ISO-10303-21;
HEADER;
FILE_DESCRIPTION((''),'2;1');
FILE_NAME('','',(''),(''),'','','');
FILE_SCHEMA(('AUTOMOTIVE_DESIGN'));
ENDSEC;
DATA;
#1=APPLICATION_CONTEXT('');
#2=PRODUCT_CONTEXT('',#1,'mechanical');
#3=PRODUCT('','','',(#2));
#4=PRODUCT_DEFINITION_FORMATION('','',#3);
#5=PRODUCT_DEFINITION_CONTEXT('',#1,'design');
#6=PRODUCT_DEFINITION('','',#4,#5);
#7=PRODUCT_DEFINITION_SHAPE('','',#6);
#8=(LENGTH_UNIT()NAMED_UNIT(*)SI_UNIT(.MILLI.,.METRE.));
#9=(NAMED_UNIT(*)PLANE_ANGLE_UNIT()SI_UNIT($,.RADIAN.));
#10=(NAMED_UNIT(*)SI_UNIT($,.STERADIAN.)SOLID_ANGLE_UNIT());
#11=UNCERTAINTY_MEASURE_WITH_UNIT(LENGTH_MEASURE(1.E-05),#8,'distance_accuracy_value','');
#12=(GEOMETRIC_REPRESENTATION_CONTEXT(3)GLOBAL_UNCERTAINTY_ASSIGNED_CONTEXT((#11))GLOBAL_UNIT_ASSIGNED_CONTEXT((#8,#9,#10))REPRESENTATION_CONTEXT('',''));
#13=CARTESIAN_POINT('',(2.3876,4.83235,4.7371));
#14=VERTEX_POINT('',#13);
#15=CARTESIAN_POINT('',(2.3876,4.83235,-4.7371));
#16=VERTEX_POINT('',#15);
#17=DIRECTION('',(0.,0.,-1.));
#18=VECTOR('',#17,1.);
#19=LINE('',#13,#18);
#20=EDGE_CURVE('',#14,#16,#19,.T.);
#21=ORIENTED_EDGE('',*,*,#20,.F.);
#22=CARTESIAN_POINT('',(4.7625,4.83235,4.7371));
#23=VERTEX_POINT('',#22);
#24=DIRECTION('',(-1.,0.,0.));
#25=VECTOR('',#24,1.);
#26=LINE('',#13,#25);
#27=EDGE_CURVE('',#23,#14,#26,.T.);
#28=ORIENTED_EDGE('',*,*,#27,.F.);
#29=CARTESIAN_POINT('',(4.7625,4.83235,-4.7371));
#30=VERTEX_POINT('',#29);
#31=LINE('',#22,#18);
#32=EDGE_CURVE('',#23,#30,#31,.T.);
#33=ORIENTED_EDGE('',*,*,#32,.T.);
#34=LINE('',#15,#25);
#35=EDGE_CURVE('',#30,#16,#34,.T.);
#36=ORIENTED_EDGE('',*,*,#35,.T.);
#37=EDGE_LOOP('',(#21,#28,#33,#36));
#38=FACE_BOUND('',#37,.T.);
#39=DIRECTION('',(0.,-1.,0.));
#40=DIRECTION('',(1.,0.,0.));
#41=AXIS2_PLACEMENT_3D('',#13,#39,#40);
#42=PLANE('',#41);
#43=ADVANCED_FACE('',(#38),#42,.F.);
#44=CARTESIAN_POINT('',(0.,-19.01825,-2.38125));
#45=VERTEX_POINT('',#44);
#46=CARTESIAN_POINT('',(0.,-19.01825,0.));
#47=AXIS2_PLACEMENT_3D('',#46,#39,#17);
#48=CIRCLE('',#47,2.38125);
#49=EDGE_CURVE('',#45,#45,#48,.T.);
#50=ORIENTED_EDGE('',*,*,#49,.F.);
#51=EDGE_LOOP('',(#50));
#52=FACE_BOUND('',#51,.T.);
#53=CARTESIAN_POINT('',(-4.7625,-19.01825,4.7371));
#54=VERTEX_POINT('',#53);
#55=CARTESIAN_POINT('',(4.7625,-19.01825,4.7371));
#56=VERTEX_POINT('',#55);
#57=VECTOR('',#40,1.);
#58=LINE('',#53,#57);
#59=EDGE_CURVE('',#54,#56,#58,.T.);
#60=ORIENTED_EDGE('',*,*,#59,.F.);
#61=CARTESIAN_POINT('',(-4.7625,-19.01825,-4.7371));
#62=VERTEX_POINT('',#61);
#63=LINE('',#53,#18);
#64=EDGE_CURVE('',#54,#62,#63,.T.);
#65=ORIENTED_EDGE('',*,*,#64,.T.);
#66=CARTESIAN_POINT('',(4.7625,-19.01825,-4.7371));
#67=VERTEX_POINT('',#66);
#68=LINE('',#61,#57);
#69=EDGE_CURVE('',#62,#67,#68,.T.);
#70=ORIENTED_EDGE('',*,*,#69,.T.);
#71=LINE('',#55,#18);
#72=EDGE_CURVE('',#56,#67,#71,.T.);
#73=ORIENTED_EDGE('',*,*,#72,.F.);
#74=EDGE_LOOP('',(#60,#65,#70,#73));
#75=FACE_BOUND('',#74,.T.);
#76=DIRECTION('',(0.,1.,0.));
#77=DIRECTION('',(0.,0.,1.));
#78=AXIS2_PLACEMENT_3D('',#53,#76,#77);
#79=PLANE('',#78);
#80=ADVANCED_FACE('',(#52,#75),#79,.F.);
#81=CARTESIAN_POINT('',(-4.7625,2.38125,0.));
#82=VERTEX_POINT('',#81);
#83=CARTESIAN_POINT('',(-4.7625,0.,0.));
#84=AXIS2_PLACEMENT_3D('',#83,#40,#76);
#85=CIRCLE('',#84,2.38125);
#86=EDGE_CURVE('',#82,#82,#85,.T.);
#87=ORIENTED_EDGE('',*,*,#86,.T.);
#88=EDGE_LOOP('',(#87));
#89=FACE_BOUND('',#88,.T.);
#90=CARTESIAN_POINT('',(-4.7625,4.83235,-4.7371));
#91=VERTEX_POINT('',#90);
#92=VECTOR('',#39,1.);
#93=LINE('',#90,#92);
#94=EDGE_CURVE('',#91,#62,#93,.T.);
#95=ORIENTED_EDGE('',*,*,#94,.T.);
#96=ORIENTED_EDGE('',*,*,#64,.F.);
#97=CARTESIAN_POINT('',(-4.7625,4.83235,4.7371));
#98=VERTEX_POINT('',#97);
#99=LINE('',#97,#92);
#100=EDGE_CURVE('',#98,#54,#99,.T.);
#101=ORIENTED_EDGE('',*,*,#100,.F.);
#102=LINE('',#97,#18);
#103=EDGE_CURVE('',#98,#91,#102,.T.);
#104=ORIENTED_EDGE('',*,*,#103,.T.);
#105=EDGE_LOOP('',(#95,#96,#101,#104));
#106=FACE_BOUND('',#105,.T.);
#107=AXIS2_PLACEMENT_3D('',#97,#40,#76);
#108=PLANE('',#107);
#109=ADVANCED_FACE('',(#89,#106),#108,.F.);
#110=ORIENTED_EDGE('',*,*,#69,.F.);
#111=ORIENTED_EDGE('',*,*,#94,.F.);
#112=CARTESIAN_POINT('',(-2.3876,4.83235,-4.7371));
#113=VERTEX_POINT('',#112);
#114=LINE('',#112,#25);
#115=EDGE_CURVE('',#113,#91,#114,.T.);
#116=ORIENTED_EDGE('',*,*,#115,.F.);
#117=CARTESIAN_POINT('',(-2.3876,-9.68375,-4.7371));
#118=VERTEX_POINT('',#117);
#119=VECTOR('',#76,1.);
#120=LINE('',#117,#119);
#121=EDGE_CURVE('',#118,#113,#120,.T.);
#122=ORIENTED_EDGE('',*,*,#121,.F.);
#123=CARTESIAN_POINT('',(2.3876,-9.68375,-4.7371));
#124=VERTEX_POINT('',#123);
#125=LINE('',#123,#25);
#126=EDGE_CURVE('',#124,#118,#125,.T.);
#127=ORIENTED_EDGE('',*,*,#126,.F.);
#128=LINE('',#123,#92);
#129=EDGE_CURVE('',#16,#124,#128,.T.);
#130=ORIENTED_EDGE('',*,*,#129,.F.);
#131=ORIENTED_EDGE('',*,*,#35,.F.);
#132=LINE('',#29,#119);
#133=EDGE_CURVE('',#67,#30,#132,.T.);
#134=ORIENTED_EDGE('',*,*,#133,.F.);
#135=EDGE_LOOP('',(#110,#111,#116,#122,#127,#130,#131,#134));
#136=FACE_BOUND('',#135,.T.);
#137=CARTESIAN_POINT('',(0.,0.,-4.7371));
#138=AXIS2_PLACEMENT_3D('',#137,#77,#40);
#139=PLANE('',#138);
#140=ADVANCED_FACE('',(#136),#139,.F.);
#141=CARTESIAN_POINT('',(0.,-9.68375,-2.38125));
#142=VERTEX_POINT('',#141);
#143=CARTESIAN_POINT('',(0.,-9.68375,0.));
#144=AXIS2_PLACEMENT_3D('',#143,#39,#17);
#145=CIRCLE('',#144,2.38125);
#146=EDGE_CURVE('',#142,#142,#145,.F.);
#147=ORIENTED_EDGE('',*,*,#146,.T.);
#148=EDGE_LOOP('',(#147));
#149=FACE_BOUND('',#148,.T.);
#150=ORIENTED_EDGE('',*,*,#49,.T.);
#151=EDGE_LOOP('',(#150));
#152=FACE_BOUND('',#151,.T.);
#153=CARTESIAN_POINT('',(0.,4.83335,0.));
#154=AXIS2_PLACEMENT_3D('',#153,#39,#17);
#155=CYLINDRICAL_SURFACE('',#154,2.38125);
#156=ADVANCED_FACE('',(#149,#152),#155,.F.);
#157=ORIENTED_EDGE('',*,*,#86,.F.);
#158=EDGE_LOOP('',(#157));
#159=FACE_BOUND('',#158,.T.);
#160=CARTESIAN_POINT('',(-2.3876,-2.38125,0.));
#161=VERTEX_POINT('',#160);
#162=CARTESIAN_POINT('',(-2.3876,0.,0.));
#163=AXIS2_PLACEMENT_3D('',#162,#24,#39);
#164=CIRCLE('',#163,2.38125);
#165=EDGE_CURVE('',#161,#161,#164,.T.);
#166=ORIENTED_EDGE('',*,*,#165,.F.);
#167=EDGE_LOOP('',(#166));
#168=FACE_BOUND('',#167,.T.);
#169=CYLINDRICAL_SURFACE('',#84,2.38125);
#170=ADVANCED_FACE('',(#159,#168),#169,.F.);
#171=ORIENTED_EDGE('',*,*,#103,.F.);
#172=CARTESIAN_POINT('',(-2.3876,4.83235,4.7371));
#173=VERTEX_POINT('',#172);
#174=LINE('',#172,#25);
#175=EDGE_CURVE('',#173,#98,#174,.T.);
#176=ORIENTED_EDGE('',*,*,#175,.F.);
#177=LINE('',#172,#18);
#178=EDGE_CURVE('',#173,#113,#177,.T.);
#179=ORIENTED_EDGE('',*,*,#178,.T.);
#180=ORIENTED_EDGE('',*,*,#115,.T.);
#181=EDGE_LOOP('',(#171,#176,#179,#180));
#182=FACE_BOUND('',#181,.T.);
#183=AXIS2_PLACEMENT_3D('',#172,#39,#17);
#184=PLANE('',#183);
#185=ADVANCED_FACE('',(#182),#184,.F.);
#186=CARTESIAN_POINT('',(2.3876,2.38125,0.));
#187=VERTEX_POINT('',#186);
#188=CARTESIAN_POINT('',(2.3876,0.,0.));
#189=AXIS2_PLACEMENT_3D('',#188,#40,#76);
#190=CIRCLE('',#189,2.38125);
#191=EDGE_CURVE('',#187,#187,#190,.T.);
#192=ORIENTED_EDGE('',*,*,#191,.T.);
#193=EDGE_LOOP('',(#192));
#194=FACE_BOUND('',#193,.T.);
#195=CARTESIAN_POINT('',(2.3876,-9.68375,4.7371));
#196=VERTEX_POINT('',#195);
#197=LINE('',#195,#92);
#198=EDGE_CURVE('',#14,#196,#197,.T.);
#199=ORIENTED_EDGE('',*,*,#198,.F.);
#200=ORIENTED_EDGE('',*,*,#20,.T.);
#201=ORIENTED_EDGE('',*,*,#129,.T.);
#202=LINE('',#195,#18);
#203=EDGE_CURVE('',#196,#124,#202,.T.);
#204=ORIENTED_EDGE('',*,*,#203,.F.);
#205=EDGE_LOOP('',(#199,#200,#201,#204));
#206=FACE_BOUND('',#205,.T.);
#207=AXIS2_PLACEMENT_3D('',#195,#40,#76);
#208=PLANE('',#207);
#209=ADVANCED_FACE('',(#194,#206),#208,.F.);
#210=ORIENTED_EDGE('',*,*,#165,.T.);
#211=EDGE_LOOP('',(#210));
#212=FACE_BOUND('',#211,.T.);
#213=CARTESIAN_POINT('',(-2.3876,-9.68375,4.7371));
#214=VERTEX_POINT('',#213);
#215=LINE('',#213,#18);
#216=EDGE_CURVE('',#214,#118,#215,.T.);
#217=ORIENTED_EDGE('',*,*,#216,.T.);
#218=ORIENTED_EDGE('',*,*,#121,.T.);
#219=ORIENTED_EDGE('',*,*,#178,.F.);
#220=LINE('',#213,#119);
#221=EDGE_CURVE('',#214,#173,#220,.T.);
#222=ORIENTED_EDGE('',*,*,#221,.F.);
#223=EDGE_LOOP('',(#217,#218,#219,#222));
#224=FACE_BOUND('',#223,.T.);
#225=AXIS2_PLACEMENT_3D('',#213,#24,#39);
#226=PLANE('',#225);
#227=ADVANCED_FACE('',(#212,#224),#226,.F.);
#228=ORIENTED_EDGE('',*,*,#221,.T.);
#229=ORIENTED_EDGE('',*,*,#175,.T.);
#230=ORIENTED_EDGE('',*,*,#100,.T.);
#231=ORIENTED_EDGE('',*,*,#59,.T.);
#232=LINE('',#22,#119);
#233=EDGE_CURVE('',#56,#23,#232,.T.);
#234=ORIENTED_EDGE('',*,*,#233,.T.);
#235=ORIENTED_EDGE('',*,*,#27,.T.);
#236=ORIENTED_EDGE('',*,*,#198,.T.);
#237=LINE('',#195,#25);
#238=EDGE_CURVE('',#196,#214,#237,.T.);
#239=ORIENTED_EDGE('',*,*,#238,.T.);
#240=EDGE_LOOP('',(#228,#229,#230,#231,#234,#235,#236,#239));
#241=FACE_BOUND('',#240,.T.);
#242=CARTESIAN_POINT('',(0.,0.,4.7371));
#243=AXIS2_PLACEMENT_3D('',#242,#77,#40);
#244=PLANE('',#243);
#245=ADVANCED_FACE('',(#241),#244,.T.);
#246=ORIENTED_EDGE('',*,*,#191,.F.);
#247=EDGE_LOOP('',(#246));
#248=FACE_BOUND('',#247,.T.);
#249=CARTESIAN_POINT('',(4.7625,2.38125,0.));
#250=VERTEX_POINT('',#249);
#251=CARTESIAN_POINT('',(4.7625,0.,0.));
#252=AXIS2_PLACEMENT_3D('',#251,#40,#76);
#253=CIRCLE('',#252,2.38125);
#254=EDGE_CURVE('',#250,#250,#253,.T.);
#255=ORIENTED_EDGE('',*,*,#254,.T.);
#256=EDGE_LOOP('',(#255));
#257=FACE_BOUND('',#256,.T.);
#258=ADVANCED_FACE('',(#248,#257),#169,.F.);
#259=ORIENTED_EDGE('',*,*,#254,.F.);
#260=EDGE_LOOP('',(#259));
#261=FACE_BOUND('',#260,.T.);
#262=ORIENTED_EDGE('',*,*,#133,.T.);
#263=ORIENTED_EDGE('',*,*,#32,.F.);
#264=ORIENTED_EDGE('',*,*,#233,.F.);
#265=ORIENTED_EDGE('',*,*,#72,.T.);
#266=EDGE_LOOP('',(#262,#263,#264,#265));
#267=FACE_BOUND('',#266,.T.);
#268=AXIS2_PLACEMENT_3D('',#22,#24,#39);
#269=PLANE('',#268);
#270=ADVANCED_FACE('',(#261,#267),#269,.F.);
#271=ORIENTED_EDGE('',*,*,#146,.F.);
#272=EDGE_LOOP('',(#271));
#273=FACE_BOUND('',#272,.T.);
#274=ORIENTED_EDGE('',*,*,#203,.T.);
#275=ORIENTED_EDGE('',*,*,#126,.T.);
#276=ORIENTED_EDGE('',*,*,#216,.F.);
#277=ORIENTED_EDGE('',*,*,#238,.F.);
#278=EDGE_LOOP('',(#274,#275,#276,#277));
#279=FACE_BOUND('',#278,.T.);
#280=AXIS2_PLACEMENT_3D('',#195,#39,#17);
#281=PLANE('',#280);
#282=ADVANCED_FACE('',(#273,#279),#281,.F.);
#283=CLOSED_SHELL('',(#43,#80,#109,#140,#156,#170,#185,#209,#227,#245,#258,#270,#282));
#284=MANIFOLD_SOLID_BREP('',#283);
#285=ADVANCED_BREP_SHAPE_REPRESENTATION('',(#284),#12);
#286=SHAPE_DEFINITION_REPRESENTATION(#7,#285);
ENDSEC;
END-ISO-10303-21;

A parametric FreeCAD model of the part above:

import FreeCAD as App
import Part
import Sketcher
from FreeCAD import Vector
Q = App.Units.Quantity

doc = App.newDocument("Part")
params = doc.addObject("Spreadsheet::Sheet", "Params")
for row, (alias, value) in enumerate([
    ("sketch1_width", "0.188 in"),
    ("sketch1_width2", "0.375 in"),
    ("sketch1_height", "0.939 in"),
    ("pad1_length", "0.373 in"),
    ("sketch2_diameter", "0.1875 in"),
    ("sketch3_diameter", "0.1875 in"),
], start=1):
    params.set(f"A{row}", alias)
    params.set(f"B{row}", "=" + value)
    params.setAlias(f"B{row}", alias)

body = doc.addObject("PartDesign::Body", "Body")

sketch1 = body.newObject("Sketcher::SketchObject", "Sketch")
sketch1.AttachmentSupport = (doc.getObject("XY_Plane"), [""])
sketch1.MapMode = "FlatFace"
sketch1.addGeometry([
    Part.LineSegment(Vector(2.4, -9.7, 0), Vector(-2.4, -9.7, 0)),
    Part.LineSegment(Vector(-2.4, -9.7, 0), Vector(-2.4, 4.8, 0)),
    Part.LineSegment(Vector(-2.4, 4.8, 0), Vector(-4.8, 4.8, 0)),
    Part.LineSegment(Vector(-4.8, 4.8, 0), Vector(-4.8, -19, 0)),
    Part.LineSegment(Vector(-4.8, -19, 0), Vector(4.8, -19, 0)),
    Part.LineSegment(Vector(4.8, -19, 0), Vector(4.8, 4.8, 0)),
    Part.LineSegment(Vector(4.8, 4.8, 0), Vector(2.4, 4.8, 0)),
    Part.LineSegment(Vector(2.4, 4.8, 0), Vector(2.4, -9.7, 0)),
], False)
sketch1.addConstraint([
    Sketcher.Constraint("Coincident", 0, 2, 1, 1),
    Sketcher.Constraint("Coincident", 1, 2, 2, 1),
    Sketcher.Constraint("Coincident", 2, 2, 3, 1),
    Sketcher.Constraint("Coincident", 3, 2, 4, 1),
    Sketcher.Constraint("Coincident", 4, 2, 5, 1),
    Sketcher.Constraint("Coincident", 5, 2, 6, 1),
    Sketcher.Constraint("Coincident", 6, 2, 7, 1),
    Sketcher.Constraint("Coincident", 7, 2, 0, 1),
    Sketcher.Constraint("Horizontal", 0),
    Sketcher.Constraint("Vertical", 1),
    Sketcher.Constraint("Horizontal", 2),
    Sketcher.Constraint("Vertical", 3),
    Sketcher.Constraint("Horizontal", 4),
    Sketcher.Constraint("Vertical", 5),
    Sketcher.Constraint("Horizontal", 6),
    Sketcher.Constraint("Vertical", 7),
    Sketcher.Constraint("Symmetric", 2, 2, 5, 2, -2),
    Sketcher.Constraint("Equal", 2, 6),
    Sketcher.Constraint("DistanceX", 0, 2, 0, 1, Q("0.188 in")),
    Sketcher.Constraint("DistanceX", 4, 1, 4, 2, Q("0.375 in")),
    Sketcher.Constraint("DistanceY", 3, 2, 3, 1, Q("0.939 in")),
    Sketcher.Constraint("DistanceY", 1, 1, 1, 2, Q("0.5715 in")),
    Sketcher.Constraint("DistanceY", 0, 2, -1, 1, Q("9.68375 mm")),
])
sketch1.setExpression("Constraints[18]", "Params.sketch1_width")
sketch1.setExpression("Constraints[19]", "Params.sketch1_width2")
sketch1.setExpression("Constraints[20]", "Params.sketch1_height")
pad1 = body.newObject("PartDesign::Pad", "Pad")
pad1.Profile = sketch1
pad1.setExpression("Length", "Params.pad1_length")
pad1.Midplane = True

sketch2 = body.newObject("Sketcher::SketchObject", "Sketch001")
sketch2.AttachmentSupport = (doc.getObject("XZ_Plane"), [""])
sketch2.MapMode = "FlatFace"
sketch2.AttachmentOffset = App.Placement(Vector(0, 0, 19.01825), App.Rotation())
sketch2.addGeometry(Part.Circle(Vector(0, 0, 0), Vector(0, 0, 1), 2.4), False)
sketch2.addConstraint([
    Sketcher.Constraint("Coincident", 0, 3, -1, 1),
    Sketcher.Constraint("Diameter", 0, Q("0.1875 in")),
])
sketch2.setExpression("Constraints[1]", "Params.sketch2_diameter")
pocket1 = body.newObject("PartDesign::Pocket", "Pocket")
pocket1.Profile = sketch2
pocket1.Type = "UpToFirst"

sketch3 = body.newObject("Sketcher::SketchObject", "Sketch002")
sketch3.AttachmentSupport = (doc.getObject("YZ_Plane"), [""])
sketch3.MapMode = "FlatFace"
sketch3.AttachmentOffset = App.Placement(Vector(0, 0, 0.1875 * 25.4), App.Rotation())
sketch3.addGeometry(Part.Circle(Vector(0, 0, 0), Vector(0, 0, 1), 2.4), False)
sketch3.addConstraint([
    Sketcher.Constraint("Coincident", 0, 3, -1, 1),
    Sketcher.Constraint("Diameter", 0, Q("0.1875 in")),
])
sketch3.setExpression("Constraints[1]", "Params.sketch3_diameter")
pocket2 = body.newObject("PartDesign::Pocket", "Pocket001")
pocket2.Profile = sketch3
pocket2.Type = "ThroughAll"

doc.recompute()
